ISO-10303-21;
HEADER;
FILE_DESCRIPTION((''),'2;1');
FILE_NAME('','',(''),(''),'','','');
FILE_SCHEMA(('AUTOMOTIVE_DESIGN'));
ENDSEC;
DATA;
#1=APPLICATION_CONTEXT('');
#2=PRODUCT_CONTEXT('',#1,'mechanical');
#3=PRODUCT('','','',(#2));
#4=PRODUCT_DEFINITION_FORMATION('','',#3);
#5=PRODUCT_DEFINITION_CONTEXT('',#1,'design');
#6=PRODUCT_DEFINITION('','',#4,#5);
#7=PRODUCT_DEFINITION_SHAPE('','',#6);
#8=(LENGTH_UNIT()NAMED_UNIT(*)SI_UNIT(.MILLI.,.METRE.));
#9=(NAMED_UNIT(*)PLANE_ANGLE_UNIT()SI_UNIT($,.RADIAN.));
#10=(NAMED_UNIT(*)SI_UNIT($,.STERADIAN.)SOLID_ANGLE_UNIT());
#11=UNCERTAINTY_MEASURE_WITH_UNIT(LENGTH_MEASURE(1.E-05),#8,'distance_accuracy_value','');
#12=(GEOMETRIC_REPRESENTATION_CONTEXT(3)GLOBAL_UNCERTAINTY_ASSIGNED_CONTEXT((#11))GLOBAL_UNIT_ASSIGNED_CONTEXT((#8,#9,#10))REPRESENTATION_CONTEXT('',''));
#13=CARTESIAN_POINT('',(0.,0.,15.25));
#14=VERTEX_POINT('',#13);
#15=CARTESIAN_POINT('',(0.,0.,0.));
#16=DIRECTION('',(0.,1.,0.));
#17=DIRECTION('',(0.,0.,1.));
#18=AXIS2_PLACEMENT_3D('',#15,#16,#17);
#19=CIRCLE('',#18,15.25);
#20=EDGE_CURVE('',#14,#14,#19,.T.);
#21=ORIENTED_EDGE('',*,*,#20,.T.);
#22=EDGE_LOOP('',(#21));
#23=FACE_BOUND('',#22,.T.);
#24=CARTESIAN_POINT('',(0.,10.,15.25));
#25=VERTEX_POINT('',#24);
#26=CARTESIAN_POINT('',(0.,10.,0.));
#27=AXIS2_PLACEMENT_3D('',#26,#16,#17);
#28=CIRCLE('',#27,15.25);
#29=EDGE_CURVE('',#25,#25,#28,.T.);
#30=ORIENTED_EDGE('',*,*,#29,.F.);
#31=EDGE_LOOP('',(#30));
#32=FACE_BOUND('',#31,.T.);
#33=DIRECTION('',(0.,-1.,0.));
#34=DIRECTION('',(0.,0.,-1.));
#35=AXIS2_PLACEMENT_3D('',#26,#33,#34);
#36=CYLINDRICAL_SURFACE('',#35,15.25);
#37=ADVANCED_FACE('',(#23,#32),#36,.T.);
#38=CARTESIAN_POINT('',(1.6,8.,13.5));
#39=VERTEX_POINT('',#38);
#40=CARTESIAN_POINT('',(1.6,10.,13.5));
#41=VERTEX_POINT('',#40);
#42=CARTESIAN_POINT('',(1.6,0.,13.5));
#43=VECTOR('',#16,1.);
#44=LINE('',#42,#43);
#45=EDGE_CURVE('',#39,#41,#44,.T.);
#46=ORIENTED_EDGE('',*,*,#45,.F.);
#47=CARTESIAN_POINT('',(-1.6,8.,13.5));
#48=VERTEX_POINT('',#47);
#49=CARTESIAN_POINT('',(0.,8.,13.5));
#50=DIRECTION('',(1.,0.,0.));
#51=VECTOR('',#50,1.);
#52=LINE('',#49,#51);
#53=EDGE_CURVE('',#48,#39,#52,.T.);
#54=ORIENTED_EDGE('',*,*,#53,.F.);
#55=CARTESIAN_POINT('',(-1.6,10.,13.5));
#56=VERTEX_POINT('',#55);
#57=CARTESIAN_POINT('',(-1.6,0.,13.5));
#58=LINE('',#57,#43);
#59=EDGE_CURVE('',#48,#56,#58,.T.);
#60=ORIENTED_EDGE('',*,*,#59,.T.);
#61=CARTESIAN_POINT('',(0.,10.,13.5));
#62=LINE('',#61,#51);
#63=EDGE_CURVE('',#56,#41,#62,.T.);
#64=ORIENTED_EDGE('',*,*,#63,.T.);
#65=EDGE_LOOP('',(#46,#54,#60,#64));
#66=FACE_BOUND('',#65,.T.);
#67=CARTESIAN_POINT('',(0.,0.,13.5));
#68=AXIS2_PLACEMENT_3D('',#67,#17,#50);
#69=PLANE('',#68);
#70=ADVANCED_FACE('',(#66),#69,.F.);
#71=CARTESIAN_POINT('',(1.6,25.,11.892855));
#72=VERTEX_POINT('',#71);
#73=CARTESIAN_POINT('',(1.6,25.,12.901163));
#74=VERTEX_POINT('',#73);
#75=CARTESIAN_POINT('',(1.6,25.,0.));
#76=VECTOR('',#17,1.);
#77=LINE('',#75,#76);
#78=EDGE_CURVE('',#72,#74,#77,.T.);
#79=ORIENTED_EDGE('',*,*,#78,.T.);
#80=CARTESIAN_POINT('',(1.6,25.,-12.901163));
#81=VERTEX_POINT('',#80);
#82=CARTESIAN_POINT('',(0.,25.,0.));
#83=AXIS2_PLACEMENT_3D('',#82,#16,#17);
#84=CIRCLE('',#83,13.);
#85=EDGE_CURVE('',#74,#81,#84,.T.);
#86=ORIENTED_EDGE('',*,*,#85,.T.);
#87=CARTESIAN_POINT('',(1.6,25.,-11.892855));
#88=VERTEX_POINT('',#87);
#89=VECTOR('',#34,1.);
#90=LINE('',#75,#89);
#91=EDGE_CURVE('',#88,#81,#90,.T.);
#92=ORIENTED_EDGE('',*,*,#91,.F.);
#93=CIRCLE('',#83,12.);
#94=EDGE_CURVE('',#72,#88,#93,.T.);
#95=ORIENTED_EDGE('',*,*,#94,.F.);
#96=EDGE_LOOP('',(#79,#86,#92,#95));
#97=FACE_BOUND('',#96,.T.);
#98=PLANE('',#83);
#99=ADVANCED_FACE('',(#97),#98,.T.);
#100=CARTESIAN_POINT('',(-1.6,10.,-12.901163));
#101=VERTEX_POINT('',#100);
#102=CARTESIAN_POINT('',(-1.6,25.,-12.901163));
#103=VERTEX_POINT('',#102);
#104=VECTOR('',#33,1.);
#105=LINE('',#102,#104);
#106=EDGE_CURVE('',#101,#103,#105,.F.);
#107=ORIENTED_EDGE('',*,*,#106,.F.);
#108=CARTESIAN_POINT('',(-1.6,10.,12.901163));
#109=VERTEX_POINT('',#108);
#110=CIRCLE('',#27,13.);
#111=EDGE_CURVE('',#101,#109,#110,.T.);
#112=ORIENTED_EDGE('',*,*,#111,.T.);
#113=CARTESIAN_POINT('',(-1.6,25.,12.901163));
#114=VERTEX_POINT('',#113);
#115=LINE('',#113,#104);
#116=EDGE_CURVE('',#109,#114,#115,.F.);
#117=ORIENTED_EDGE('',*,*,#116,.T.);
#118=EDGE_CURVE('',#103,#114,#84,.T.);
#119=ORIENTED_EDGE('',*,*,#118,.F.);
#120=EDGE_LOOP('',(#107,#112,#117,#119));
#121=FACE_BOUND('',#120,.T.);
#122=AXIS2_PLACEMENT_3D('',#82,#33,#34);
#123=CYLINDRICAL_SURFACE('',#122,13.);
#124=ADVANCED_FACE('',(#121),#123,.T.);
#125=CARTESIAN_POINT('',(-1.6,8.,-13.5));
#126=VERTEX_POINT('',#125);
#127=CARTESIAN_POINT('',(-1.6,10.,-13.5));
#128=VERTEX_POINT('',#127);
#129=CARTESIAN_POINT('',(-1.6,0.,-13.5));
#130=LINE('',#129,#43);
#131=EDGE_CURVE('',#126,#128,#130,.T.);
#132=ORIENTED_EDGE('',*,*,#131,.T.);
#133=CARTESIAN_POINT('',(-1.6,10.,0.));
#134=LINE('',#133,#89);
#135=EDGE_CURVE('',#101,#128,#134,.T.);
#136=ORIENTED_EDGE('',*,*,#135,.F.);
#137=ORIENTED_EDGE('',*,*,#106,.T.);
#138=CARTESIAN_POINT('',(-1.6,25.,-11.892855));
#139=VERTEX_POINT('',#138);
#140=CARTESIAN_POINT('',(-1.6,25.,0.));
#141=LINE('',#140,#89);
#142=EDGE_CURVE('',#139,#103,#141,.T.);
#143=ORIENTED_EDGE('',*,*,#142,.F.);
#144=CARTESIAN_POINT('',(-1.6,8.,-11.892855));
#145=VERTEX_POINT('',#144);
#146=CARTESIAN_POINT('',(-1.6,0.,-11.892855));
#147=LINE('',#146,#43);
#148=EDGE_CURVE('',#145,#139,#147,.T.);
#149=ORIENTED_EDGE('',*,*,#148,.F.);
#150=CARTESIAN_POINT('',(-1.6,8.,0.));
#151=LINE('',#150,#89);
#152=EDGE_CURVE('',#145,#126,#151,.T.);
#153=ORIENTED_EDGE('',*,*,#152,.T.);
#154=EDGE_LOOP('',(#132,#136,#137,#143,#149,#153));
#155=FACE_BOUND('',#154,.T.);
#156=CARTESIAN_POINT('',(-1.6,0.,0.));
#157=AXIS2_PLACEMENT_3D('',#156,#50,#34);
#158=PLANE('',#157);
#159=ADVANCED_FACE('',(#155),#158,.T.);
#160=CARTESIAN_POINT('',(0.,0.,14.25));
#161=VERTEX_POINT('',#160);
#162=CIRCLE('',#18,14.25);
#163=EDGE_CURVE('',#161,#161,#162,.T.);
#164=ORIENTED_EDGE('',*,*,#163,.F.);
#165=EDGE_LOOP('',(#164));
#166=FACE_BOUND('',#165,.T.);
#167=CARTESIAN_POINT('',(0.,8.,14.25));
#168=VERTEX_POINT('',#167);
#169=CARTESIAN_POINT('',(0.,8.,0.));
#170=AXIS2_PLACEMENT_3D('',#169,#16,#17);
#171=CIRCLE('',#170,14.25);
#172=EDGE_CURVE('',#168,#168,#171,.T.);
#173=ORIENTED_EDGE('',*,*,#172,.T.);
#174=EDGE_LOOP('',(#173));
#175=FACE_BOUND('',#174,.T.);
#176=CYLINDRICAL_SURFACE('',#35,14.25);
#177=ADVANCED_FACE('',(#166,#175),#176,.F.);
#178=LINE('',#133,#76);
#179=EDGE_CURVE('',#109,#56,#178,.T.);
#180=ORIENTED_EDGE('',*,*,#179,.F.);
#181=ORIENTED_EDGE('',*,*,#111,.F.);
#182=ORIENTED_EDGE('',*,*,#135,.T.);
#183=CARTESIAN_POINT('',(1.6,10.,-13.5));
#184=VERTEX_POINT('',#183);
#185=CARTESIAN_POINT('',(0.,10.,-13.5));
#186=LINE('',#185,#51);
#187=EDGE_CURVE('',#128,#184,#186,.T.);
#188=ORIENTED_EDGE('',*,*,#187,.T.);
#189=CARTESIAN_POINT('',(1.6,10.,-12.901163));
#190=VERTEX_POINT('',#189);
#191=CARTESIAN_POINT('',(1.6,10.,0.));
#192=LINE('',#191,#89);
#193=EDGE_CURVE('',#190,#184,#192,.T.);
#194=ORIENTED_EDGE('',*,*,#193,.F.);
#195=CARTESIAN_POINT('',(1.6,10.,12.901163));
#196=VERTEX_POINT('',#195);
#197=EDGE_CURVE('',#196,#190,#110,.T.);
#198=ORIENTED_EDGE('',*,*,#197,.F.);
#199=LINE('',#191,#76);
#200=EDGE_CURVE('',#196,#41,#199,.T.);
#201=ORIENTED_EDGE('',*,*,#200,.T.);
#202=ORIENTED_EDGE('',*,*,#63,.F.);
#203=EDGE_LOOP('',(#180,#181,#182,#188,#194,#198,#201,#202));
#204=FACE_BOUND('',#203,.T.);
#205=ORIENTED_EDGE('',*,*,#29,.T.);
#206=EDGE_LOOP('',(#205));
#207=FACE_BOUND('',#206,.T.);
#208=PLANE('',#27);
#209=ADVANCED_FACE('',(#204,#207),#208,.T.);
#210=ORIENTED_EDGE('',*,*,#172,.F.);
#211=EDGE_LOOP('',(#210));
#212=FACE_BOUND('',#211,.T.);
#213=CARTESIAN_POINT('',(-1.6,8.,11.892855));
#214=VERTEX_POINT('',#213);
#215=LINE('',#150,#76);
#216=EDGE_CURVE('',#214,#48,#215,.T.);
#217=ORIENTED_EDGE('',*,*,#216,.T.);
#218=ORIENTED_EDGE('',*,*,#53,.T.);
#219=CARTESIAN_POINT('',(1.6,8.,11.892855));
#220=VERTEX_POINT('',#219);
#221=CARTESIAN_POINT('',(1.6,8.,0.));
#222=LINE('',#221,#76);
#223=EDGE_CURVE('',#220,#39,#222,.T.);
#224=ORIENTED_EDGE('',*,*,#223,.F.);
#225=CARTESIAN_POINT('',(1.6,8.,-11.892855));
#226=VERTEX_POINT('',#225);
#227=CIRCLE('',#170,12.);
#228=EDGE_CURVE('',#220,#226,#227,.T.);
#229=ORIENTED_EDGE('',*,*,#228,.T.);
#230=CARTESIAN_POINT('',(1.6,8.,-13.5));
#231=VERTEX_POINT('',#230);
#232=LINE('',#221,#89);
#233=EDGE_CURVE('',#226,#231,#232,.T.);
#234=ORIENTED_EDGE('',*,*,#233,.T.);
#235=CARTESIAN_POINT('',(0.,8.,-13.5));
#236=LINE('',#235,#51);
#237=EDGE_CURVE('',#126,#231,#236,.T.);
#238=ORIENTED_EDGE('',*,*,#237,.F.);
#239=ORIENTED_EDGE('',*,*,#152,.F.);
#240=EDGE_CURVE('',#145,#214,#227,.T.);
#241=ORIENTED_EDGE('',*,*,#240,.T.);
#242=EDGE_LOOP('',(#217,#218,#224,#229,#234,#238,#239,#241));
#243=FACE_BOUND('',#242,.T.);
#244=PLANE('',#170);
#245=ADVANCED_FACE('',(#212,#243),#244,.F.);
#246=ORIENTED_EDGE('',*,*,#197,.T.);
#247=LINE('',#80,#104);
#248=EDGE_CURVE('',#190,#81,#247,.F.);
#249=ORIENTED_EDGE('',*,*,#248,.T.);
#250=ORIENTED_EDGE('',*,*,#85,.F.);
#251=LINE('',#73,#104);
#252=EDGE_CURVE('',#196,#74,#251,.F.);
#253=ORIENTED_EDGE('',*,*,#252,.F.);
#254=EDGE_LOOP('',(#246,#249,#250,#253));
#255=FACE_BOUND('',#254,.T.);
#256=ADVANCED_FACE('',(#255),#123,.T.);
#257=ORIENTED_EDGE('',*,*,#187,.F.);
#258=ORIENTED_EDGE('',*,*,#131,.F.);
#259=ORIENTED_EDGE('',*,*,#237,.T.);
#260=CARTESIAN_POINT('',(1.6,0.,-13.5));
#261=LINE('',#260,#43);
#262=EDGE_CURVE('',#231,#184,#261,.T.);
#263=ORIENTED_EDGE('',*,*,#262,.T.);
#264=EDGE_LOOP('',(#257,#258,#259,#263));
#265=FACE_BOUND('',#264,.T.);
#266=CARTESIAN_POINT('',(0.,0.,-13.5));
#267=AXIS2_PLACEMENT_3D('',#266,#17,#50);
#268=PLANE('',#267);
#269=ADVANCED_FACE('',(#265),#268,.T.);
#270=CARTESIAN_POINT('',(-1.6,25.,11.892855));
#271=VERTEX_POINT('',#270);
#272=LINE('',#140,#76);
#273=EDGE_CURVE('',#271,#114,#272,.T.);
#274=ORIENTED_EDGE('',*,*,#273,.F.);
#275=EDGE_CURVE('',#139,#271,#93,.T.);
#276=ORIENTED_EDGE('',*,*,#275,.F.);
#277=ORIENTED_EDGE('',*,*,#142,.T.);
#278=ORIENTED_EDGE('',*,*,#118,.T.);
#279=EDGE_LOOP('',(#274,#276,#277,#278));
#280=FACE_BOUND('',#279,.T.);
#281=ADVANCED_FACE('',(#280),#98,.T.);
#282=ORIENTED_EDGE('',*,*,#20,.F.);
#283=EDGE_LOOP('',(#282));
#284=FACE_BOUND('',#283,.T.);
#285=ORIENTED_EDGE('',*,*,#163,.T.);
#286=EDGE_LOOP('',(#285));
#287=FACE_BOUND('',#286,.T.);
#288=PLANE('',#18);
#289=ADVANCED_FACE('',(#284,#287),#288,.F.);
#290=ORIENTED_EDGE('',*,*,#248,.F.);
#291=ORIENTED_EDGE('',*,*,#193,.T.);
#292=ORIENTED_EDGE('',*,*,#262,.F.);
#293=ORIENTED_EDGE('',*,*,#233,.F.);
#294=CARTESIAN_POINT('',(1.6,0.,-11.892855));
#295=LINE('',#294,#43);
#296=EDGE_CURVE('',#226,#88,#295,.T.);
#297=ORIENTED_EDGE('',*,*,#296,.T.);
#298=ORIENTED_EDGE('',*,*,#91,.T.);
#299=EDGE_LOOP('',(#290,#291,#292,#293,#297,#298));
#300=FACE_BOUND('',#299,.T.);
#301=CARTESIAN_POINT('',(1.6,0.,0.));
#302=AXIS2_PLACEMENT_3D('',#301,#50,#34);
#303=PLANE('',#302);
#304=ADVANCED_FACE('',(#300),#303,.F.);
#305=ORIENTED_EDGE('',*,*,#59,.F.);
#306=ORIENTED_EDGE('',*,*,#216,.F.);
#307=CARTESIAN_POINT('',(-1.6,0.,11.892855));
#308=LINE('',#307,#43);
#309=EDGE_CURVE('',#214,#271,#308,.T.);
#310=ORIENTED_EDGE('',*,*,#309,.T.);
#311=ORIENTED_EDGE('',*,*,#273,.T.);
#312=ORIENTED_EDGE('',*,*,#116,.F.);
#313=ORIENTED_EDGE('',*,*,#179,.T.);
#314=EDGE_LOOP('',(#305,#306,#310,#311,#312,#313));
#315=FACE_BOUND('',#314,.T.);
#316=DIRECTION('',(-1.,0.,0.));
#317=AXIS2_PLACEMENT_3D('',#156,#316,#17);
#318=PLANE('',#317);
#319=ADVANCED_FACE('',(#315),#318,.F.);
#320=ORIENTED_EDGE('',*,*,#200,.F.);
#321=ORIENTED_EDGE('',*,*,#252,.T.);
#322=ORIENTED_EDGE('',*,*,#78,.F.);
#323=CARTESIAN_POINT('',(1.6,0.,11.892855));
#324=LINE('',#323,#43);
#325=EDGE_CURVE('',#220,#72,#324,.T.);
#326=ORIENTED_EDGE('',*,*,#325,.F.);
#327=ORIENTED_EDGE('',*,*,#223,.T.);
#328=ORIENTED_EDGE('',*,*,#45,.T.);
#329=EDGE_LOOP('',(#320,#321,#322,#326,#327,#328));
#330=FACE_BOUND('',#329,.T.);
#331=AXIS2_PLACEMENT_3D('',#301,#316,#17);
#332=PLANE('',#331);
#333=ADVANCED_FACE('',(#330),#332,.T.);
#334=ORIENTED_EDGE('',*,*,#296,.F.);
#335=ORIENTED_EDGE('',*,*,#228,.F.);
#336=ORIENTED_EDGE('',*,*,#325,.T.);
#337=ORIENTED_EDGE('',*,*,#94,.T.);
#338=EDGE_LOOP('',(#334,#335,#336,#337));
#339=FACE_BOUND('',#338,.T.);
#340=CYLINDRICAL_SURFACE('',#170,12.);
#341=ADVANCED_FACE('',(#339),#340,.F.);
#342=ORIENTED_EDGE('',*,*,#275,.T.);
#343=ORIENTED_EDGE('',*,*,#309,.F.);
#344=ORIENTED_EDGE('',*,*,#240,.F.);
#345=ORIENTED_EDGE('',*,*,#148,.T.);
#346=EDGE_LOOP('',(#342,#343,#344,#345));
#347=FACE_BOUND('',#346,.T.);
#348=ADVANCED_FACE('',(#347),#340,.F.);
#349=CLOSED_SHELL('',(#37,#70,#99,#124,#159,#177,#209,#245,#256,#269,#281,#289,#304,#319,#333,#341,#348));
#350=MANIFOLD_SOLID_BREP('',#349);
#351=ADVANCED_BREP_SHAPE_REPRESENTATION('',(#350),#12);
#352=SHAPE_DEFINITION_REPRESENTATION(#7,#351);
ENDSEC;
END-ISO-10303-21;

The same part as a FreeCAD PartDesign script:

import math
import FreeCAD as App
import Part
import Sketcher
from FreeCAD import Vector

doc = App.newDocument("Part")
body = doc.addObject("PartDesign::Body", "Body")

# Sketch on XZ plane
sketch1 = body.newObject("Sketcher::SketchObject", "Sketch")
sketch1.AttachmentSupport = (doc.getObject("XZ_Plane"), [""])
sketch1.MapMode = "FlatFace"
sketch1.addGeometry(Part.Circle(Vector(0, 0, 0), Vector(0, 0, 1), 15), False)
sketch1.addGeometry(Part.Circle(Vector(0, 0, 0), Vector(0, 0, 1), 14), False)
sketch1.addConstraint(Sketcher.Constraint("Coincident", 0, 3, -1, 1))
sketch1.addConstraint(Sketcher.Constraint("Coincident", 1, 3, -1, 1))
sketch1.addConstraint(Sketcher.Constraint("Diameter", 0, 30.5))
sketch1.addConstraint(Sketcher.Constraint("Diameter", 1, 28.5))
pad1 = body.newObject("PartDesign::Pad", "Pad")
pad1.Profile = sketch1
pad1.Length = 10
pad1.Reversed = True

# Sketch on XZ plane
sketch2 = body.newObject("Sketcher::SketchObject", "Sketch001")
sketch2.AttachmentSupport = (doc.getObject("XZ_Plane"), [""])
sketch2.MapMode = "FlatFace"
sketch2.AttachmentOffset = App.Placement(Vector(0, 0, -8), App.Rotation())
sketch2.addGeometry(Part.Circle(Vector(0, 0, 0), Vector(0, 0, 1), 14), False)
sketch2.addConstraint(Sketcher.Constraint("Coincident", 0, 3, -1, 1))
sketch2.addConstraint(Sketcher.Constraint("Diameter", 0, 28.5))
pad2 = body.newObject("PartDesign::Pad", "Pad001")
pad2.Profile = sketch2
pad2.Length = 2
pad2.Reversed = True

# Sketch on XZ plane
sketch3 = body.newObject("Sketcher::SketchObject", "Sketch002")
sketch3.AttachmentSupport = (doc.getObject("XZ_Plane"), [""])
sketch3.MapMode = "FlatFace"
sketch3.AttachmentOffset = App.Placement(Vector(0, 0, -10), App.Rotation())
sketch3.addGeometry(Part.Circle(Vector(0, 0, 0), Vector(0, 0, 1), 12), False)
sketch3.addConstraint(Sketcher.Constraint("Coincident", 0, 3, -1, 1))
sketch3.addConstraint(Sketcher.Constraint("Diameter", 0, 24.0))
pocket1 = body.newObject("PartDesign::Pocket", "Pocket")
pocket1.Profile = sketch3
pocket1.Length = 2
pocket1.Reversed = True

# Sketch on XZ plane
sketch4 = body.newObject("Sketcher::SketchObject", "Sketch003")
sketch4.AttachmentSupport = (doc.getObject("XZ_Plane"), [""])
sketch4.MapMode = "FlatFace"
sketch4.AttachmentOffset = App.Placement(Vector(0, 0, -25), App.Rotation())
sketch4.addGeometry(Part.Circle(Vector(0, 0, 0), Vector(0, 0, 1), 13), False)
sketch4.addGeometry(Part.Circle(Vector(0, 0, 0), Vector(0, 0, 1), 12), False)
sketch4.addConstraint(Sketcher.Constraint("Coincident", 0, 3, -1, 1))
sketch4.addConstraint(Sketcher.Constraint("Coincident", 1, 3, -1, 1))
sketch4.addConstraint(Sketcher.Constraint("Diameter", 0, 26.0))
sketch4.addConstraint(Sketcher.Constraint("Diameter", 1, 24.0))
pad3 = body.newObject("PartDesign::Pad", "Pad002")
pad3.Profile = sketch4
pad3.Length = 15

# Sketch on XZ plane
sketch5 = body.newObject("Sketcher::SketchObject", "Sketch004")
sketch5.AttachmentSupport = (doc.getObject("XZ_Plane"), [""])
sketch5.MapMode = "FlatFace"
sketch5.AttachmentOffset = App.Placement(Vector(0, 0, -25), App.Rotation())
sketch5.addGeometry(Part.LineSegment(Vector(1.6, -13.5, 0), Vector(-1.6, -13.5, 0)), False)
sketch5.addGeometry(Part.LineSegment(Vector(-1.6, -13.5, 0), Vector(-1.6, -11.9, 0)), False)
sketch5.addGeometry(Part.ArcOfCircle(Part.Circle(Vector(0, 0, 0), Vector(0, 0, 1), 12), math.radians(-97.66), math.radians(-82.34)), False)
sketch5.addGeometry(Part.LineSegment(Vector(1.6, -11.9, 0), Vector(1.6, -13.5, 0)), False)
sketch5.addGeometry(Part.ArcOfCircle(Part.Circle(Vector(0, 0, 0), Vector(0, 0, 1), 12), math.radians(90), math.radians(97.66)), False)
sketch5.addGeometry(Part.LineSegment(Vector(-1.6, 11.9, 0), Vector(-1.6, 13.5, 0)), False)
sketch5.addGeometry(Part.LineSegment(Vector(-1.6, 13.5, 0), Vector(1.6, 13.5, 0)), False)
sketch5.addGeometry(Part.LineSegment(Vector(1.6, 13.5, 0), Vector(1.6, 11.9, 0)), False)
sketch5.addGeometry(Part.ArcOfCircle(Part.Circle(Vector(0, 0, 0), Vector(0, 0, 1), 12), math.radians(82.34), math.radians(90)), False)
sketch5.addConstraint(Sketcher.Constraint("Coincident", 0, 2, 1, 1))
sketch5.addConstraint(Sketcher.Constraint("Coincident", 1, 2, 2, 1))
sketch5.addConstraint(Sketcher.Constraint("Coincident", 2, 2, 3, 1))
sketch5.addConstraint(Sketcher.Constraint("Coincident", 3, 2, 0, 1))
sketch5.addConstraint(Sketcher.Constraint("Coincident", 4, 2, 5, 1))
sketch5.addConstraint(Sketcher.Constraint("Coincident", 5, 2, 6, 1))
sketch5.addConstraint(Sketcher.Constraint("Coincident", 6, 2, 7, 1))
sketch5.addConstraint(Sketcher.Constraint("Coincident", 7, 2, 8, 1))
sketch5.addConstraint(Sketcher.Constraint("Tangent", 8, 2, 4, 1))
sketch5.addConstraint(Sketcher.Constraint("Horizontal", 0))
sketch5.addConstraint(Sketcher.Constraint("Vertical", 1))
sketch5.addConstraint(Sketcher.Constraint("Vertical", 3))
sketch5.addConstraint(Sketcher.Constraint("Vertical", 5))
sketch5.addConstraint(Sketcher.Constraint("Horizontal", 6))
sketch5.addConstraint(Sketcher.Constraint("Vertical", 7))
sketch5.addConstraint(Sketcher.Constraint("Coincident", 2, 3, -1, 1))
sketch5.addConstraint(Sketcher.Constraint("Coincident", 4, 3, -1, 1))
sketch5.addConstraint(Sketcher.Constraint("Equal", 2, 4))
sketch5.addConstraint(Sketcher.Constraint("Equal", 4, 8))
sketch5.addConstraint(Sketcher.Constraint("Symmetric", 3, 2, 5, 2, -1, 1))
sketch5.addConstraint(Sketcher.Constraint("PointOnObject", 8, 2, -2))
sketch5.addConstraint(Sketcher.Constraint("Horizontal", 1, 2, 2, 2))
sketch5.addConstraint(Sketcher.Constraint("Horizontal", 4, 2, 7, 2))
sketch5.addConstraint(Sketcher.Constraint("Radius", 2, 12.0))
sketch5.addConstraint(Sketcher.Constraint("DistanceX", 0, 2, 0, 1, 3.2))
sketch5.addConstraint(Sketcher.Constraint("DistanceY", 0, 2, -1, 1, 13.5))
pocket2 = body.newObject("PartDesign::Pocket", "Pocket001")
pocket2.Profile = sketch5
pocket2.Type = "ThroughAll"
pocket2.Reversed = True

doc.recompute()
